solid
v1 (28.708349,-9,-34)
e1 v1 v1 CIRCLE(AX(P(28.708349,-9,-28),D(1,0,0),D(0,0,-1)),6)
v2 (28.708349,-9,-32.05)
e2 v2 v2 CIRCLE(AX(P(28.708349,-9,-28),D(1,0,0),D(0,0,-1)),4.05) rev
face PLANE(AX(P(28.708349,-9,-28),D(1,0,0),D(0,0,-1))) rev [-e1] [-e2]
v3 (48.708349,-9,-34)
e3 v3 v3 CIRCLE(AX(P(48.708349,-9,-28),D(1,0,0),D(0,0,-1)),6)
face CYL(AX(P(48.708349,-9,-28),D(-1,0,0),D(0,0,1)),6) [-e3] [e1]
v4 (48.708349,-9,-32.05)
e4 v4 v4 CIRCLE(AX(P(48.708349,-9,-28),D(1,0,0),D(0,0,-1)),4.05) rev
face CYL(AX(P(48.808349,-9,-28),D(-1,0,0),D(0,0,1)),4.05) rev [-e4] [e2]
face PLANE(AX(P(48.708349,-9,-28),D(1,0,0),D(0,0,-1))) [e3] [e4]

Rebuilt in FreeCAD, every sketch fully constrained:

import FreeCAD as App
import Part
import Sketcher
Q = App.Units.Quantity

doc = App.newDocument("Part")
params = doc.addObject("Spreadsheet::Sheet", "Params")
for row, (alias, value) in enumerate([
    ("sketch1_diameter", "12 mm"),
    ("pad1_length", "20 mm"),
    ("sketch2_diameter", "8.1 mm"),
    ("pocket1_length", "20.2 mm"),
], start=1):
    params.set(f"A{row}", alias)
    params.set(f"B{row}", "=" + value)
    params.setAlias(f"B{row}", alias)

body = doc.addObject("PartDesign::Body", "Body")

sketch1 = doc.addObject("Sketcher::SketchObject", "Sketch")
body.addObject(sketch1)
sketch1.AttachmentSupport = (doc.YZ_Plane, [""])
sketch1.MapMode = "FlatFace"
sketch1.AttachmentOffset = App.Placement(App.Vector(0, 0, 28.708349), App.Rotation())
sketch1.addGeometry(Part.Circle(App.Vector(-9, -28, 0), App.Vector(0, 0, 1), 6), False)
sketch1.addConstraint(Sketcher.Constraint("Diameter", 0, Q("12 mm")))
sketch1.addConstraint(Sketcher.Constraint("DistanceX", 0, 3, -1, 1, Q("9 mm")))
sketch1.addConstraint(Sketcher.Constraint("DistanceY", 0, 3, -1, 1, Q("28 mm")))
sketch1.setExpression("Constraints[0]", "Params.sketch1_diameter")
pad1 = doc.addObject("PartDesign::Pad", "Pad")
body.addObject(pad1)
pad1.Profile = sketch1
pad1.setExpression("Length", "Params.pad1_length")

sketch2 = doc.addObject("Sketcher::SketchObject", "Sketch001")
body.addObject(sketch2)
sketch2.AttachmentSupport = (doc.YZ_Plane, [""])
sketch2.MapMode = "FlatFace"
sketch2.AttachmentOffset = App.Placement(App.Vector(0, 0, 28.608349), App.Rotation())
sketch2.addGeometry(Part.Circle(App.Vector(-9, -28, 0), App.Vector(0, 0, 1), 4.05), False)
sketch2.addConstraint(Sketcher.Constraint("Diameter", 0, Q("8.1 mm")))
sketch2.addConstraint(Sketcher.Constraint("DistanceX", 0, 3, -1, 1, Q("9 mm")))
sketch2.addConstraint(Sketcher.Constraint("DistanceY", 0, 3, -1, 1, Q("28 mm")))
sketch2.setExpression("Constraints[0]", "Params.sketch2_diameter")
pocket1 = doc.addObject("PartDesign::Pocket", "Pocket")
body.addObject(pocket1)
pocket1.Profile = sketch2
pocket1.setExpression("Length", "Params.pocket1_length")
pocket1.Reversed = True

doc.recompute()
